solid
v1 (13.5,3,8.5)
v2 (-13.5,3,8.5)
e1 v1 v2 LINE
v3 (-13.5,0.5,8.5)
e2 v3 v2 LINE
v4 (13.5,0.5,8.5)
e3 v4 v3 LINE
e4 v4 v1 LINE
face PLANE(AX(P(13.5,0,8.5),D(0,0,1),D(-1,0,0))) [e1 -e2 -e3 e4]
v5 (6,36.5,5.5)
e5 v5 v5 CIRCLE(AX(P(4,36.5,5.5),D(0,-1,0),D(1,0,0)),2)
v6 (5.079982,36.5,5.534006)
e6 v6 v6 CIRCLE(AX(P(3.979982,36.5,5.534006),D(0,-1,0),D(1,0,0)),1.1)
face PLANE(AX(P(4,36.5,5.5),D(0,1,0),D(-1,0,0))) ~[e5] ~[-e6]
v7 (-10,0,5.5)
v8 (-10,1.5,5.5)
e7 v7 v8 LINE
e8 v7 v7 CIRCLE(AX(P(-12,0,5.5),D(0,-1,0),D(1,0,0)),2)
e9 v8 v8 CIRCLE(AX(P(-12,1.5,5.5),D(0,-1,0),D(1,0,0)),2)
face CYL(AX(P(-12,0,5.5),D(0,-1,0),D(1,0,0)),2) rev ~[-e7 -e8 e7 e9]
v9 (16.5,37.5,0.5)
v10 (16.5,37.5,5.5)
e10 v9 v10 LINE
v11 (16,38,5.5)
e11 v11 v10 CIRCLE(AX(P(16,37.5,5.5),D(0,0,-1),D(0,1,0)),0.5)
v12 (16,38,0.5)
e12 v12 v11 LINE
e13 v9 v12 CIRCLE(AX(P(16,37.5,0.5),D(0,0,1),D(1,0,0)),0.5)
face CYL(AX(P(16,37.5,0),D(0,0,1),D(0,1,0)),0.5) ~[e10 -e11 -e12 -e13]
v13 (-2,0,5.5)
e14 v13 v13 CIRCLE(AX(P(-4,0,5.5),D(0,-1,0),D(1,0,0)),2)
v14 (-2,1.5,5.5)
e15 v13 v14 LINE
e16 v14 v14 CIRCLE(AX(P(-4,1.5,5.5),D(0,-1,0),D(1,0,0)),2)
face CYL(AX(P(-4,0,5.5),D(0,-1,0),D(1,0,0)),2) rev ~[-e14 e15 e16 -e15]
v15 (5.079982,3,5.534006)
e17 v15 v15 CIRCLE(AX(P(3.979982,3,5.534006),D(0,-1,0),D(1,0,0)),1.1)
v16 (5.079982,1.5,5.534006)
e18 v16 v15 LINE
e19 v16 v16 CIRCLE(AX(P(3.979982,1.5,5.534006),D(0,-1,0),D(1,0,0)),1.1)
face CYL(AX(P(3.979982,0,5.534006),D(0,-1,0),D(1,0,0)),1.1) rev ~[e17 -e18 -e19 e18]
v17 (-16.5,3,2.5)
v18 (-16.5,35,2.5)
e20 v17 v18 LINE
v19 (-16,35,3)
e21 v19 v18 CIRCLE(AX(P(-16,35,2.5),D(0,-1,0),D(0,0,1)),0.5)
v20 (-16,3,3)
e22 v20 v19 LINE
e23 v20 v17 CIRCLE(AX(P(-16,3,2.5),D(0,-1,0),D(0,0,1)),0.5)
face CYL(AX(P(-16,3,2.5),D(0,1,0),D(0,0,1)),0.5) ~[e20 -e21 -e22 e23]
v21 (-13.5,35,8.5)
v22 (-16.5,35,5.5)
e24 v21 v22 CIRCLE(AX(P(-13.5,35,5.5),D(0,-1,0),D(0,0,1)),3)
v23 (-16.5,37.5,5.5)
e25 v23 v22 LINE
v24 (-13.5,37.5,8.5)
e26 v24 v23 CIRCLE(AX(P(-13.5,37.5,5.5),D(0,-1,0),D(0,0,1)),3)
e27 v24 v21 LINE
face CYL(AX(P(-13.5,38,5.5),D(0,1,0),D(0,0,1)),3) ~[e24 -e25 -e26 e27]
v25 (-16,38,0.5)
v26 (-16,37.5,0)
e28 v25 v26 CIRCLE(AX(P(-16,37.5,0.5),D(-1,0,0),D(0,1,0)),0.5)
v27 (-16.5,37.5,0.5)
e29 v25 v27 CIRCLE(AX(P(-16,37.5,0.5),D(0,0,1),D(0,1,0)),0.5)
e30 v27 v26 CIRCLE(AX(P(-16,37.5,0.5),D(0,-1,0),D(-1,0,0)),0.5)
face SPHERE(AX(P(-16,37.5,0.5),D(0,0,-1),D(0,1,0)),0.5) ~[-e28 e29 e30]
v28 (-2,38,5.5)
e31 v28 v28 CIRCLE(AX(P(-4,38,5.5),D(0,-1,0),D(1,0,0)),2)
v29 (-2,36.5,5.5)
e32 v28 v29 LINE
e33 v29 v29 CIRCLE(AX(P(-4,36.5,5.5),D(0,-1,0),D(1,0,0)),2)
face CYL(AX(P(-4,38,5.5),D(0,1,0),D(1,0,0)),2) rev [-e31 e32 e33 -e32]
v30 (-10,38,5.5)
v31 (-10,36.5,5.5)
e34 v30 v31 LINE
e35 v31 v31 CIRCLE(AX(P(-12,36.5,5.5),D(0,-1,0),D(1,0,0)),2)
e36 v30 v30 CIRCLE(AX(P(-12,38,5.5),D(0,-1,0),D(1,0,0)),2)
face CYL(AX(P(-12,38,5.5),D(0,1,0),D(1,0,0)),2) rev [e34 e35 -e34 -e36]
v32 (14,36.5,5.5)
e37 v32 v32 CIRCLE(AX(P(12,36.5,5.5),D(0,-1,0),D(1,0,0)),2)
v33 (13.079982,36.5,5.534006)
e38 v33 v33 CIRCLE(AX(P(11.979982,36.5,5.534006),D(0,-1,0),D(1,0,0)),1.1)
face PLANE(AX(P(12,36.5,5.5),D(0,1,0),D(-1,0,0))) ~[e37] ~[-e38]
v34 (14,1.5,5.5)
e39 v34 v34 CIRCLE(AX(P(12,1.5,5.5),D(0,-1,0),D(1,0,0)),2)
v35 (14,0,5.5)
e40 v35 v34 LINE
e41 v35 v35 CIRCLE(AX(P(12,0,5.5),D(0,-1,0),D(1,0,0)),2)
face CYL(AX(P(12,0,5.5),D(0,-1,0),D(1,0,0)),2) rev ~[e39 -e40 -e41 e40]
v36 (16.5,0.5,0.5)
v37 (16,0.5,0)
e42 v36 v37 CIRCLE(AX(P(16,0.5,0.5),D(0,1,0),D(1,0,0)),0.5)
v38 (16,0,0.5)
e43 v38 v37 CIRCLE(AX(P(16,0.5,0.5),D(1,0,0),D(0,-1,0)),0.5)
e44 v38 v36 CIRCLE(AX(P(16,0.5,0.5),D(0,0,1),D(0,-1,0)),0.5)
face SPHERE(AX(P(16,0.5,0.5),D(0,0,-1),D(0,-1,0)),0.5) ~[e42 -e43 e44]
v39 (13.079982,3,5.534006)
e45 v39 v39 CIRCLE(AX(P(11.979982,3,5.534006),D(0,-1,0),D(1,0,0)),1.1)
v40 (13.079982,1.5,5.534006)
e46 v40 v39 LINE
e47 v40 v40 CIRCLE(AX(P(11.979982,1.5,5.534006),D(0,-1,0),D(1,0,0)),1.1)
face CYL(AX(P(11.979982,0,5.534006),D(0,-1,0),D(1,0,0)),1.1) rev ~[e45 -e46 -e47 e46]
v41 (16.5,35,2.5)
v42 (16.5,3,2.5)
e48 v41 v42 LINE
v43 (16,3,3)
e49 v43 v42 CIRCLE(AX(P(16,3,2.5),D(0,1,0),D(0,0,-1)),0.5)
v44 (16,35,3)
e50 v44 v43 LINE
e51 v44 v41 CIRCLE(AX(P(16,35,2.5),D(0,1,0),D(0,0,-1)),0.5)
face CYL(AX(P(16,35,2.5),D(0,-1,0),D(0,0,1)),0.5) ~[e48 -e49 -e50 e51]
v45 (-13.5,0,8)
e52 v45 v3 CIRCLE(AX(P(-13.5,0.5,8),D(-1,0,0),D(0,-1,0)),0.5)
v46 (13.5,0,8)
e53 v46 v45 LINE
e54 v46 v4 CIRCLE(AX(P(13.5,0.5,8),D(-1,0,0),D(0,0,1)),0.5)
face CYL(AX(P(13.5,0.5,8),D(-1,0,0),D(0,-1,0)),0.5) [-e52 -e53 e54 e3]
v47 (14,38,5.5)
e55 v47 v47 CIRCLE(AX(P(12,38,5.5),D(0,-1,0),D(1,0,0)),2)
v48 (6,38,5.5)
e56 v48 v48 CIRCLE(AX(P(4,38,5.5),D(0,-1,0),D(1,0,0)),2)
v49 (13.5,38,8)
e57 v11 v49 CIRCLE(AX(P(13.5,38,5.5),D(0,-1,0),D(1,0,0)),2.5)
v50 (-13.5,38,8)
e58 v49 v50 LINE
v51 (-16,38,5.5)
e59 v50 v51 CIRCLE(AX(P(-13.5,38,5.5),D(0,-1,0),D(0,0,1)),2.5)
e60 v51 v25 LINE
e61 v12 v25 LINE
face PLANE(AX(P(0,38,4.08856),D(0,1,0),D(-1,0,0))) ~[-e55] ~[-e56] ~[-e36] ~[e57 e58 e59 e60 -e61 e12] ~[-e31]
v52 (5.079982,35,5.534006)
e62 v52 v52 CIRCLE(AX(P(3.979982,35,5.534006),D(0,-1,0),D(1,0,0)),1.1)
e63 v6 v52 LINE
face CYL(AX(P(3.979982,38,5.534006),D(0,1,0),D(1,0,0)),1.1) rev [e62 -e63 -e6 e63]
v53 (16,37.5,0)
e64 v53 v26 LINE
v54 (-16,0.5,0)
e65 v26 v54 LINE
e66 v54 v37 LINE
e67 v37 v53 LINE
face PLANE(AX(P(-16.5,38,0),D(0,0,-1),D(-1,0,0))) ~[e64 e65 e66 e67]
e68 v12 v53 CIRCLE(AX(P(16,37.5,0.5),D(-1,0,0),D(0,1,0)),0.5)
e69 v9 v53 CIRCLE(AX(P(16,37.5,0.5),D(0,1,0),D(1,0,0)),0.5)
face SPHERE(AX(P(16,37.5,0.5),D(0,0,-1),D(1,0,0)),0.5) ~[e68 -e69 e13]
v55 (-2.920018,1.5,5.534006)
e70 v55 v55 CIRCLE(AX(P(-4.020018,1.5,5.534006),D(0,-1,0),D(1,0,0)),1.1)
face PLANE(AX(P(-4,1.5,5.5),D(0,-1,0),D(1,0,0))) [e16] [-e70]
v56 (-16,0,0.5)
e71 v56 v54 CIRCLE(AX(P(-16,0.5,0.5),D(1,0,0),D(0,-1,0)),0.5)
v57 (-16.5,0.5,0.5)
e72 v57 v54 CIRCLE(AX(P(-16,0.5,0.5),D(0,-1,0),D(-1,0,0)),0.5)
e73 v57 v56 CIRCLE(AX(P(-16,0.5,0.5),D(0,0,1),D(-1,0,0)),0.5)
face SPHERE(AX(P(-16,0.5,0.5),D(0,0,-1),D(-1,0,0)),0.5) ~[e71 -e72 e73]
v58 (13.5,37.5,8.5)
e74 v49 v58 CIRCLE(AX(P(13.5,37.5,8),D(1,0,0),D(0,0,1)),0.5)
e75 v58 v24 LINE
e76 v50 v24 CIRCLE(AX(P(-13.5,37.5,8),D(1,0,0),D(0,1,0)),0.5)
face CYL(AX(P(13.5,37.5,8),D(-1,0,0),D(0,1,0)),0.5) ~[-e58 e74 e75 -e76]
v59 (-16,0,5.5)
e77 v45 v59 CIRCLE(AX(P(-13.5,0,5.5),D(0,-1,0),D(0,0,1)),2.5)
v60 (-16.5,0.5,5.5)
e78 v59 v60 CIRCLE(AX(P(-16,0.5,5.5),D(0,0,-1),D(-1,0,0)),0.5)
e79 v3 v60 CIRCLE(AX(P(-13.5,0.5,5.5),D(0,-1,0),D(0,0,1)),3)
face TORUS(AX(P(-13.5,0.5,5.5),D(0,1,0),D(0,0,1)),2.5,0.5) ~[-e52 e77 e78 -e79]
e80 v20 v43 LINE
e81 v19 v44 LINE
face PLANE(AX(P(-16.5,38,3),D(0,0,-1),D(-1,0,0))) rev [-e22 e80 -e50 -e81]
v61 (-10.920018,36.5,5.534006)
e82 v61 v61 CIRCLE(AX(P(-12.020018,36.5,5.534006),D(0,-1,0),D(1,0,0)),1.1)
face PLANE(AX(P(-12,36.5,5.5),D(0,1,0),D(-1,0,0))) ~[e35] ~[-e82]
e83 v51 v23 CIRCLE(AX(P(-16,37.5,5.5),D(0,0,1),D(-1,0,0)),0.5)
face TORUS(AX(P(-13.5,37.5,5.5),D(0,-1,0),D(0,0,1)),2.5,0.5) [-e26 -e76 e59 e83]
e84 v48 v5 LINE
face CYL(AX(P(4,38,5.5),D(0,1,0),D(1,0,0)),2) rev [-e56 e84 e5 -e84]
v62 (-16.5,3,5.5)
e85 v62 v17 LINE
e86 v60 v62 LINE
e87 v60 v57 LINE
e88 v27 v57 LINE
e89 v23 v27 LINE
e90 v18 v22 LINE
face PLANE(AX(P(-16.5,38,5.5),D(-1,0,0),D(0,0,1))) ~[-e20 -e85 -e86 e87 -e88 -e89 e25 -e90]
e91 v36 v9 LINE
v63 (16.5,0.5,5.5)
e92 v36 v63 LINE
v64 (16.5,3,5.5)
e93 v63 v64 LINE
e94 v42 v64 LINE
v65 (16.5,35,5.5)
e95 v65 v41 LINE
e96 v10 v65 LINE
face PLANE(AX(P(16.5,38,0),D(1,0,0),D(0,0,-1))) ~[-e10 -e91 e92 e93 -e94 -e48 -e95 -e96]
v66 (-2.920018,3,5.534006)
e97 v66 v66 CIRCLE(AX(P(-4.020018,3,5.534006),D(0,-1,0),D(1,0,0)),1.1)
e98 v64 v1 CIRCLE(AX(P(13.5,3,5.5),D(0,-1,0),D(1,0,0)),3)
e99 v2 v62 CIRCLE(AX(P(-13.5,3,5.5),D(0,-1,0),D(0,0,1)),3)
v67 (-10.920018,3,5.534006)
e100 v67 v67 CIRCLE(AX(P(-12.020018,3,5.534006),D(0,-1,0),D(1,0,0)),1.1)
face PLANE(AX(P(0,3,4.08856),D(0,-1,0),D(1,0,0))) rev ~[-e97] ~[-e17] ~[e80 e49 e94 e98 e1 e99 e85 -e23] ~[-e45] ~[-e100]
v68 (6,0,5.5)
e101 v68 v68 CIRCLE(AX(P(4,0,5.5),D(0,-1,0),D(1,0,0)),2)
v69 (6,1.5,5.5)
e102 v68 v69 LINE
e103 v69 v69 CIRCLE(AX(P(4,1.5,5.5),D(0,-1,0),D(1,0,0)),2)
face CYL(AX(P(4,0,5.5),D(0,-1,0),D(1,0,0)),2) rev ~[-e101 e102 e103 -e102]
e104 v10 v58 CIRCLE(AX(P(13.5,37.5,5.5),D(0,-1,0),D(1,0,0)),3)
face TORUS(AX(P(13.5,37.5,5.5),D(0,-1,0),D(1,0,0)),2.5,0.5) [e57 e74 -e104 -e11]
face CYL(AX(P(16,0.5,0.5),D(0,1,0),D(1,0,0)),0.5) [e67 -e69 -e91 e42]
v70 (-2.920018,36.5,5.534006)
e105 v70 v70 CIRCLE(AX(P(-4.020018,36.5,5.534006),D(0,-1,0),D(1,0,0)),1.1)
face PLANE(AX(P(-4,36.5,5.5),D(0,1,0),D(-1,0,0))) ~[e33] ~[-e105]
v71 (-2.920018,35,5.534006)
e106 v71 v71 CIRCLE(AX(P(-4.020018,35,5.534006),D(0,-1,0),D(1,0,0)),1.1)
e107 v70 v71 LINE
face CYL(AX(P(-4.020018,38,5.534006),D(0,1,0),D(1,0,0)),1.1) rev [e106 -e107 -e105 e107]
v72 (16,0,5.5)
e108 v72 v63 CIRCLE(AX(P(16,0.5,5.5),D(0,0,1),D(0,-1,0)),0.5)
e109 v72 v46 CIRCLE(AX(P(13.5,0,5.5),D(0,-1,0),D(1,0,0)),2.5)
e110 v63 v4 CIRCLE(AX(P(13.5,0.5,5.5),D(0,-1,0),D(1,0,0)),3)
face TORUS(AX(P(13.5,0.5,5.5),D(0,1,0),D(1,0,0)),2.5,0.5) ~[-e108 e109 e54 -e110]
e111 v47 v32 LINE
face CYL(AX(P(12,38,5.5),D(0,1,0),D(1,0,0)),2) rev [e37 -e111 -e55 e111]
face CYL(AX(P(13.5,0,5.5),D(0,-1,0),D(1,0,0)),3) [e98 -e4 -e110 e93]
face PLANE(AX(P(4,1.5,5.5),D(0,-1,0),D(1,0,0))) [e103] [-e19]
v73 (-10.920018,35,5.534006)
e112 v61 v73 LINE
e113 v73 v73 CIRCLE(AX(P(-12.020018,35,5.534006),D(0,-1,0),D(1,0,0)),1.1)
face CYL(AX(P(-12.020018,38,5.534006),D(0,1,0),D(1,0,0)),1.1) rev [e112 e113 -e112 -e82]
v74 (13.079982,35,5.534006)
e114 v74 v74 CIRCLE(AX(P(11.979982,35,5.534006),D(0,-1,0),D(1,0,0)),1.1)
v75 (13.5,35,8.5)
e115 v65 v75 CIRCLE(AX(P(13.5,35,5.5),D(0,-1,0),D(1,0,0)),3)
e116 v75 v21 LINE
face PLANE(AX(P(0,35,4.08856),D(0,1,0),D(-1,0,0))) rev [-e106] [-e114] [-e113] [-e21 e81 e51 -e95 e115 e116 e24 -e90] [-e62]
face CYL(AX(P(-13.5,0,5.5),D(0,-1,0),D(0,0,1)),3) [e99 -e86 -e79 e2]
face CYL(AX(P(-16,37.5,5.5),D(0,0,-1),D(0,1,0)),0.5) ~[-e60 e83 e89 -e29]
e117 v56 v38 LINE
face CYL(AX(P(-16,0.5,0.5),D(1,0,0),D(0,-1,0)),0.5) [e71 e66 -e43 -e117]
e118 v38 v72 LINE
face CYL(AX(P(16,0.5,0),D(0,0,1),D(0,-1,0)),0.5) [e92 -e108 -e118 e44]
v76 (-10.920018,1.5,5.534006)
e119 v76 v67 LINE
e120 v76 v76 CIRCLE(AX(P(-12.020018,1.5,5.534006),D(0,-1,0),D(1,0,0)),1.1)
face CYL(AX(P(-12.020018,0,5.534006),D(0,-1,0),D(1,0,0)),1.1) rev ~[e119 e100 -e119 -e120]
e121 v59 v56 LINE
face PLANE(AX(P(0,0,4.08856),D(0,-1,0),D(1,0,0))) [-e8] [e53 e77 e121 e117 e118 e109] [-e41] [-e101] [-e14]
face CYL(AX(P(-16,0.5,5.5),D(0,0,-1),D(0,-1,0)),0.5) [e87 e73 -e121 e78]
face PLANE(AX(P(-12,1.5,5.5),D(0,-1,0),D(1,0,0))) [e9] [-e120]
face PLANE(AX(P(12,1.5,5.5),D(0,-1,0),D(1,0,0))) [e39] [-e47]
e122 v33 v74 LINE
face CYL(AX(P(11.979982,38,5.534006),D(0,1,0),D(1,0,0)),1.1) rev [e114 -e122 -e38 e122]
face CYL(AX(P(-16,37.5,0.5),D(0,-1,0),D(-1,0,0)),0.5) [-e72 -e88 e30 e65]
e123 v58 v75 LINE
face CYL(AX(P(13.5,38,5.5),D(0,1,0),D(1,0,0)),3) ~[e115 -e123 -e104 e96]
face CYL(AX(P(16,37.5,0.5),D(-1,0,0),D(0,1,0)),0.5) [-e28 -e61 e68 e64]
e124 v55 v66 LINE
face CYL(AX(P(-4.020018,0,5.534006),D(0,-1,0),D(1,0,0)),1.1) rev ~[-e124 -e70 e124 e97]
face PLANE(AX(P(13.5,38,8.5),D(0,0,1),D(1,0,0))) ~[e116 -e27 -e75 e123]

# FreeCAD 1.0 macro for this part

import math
import FreeCAD as App
import Part
import Sketcher


def edges_at(feature, points):
    """Names of the edges that pass closest to the given points."""
    edges = feature.Shape.Edges
    near = lambda p: min(range(len(edges)), key=lambda i: edges[i].distToShape(Part.Vertex(*p))[0])
    return sorted({f"Edge{near(p) + 1}" for p in points})

doc = App.newDocument("Part")
body = doc.addObject("PartDesign::Body", "Body")

# Sketch on XZ plane
sketch1 = body.newObject("Sketcher::SketchObject", "Sketch")
sketch1.AttachmentSupport = (doc.getObject("XZ_Plane"), [""])
sketch1.MapMode = "FlatFace"
sketch1.addGeometry([
    Part.LineSegment(App.Vector(13.5, 8.5, 0), App.Vector(-13.5, 8.5, 0)),  # 0
    Part.ArcOfCircle(Part.Circle(App.Vector(-13.5, 5.5, 0), App.Vector(0, 0, 1), 3), math.radians(90), math.radians(180)),  # 1
    Part.LineSegment(App.Vector(-16.5, 5.5, 0), App.Vector(-16.5, 0, 0)),  # 2
    Part.LineSegment(App.Vector(-16.5, 0, 0), App.Vector(16.5, 0, 0)),  # 3
    Part.LineSegment(App.Vector(16.5, 0, 0), App.Vector(16.5, 5.5, 0)),  # 4
    Part.ArcOfCircle(Part.Circle(App.Vector(13.5, 5.5, 0), App.Vector(0, 0, 1), 3), math.radians(0), math.radians(90)),  # 5
], False)
sketch1.addConstraint([
    Sketcher.Constraint("Tangent", 0, 2, 1, 1),
    Sketcher.Constraint("Tangent", 1, 2, 2, 1),
    Sketcher.Constraint("Coincident", 2, 2, 3, 1),
    Sketcher.Constraint("Coincident", 3, 2, 4, 1),
    Sketcher.Constraint("Tangent", 4, 2, 5, 1),
    Sketcher.Constraint("Tangent", 5, 2, 0, 1),
    Sketcher.Constraint("Horizontal", 0),
    Sketcher.Constraint("Vertical", 2),
    Sketcher.Constraint("Horizontal", 3),
    Sketcher.Constraint("Vertical", 4),
    Sketcher.Constraint("Equal", 1, 5),
    Sketcher.Constraint("Symmetric", 2, 2, 3, 2, -1, 1),
    Sketcher.Constraint("Radius", 1, 3.0),
    Sketcher.Constraint("DistanceX", 0, 2, 0, 1, 27.0),
    Sketcher.Constraint("DistanceY", 2, 2, 2, 1, 5.5),
])
pad1 = body.newObject("PartDesign::Pad", "Pad")
pad1.Profile = sketch1
pad1.Length = 3
pad1.Reversed = True

# Sketch on XZ plane
sketch2 = body.newObject("Sketcher::SketchObject", "Sketch001")
sketch2.AttachmentSupport = (doc.getObject("XZ_Plane"), [""])
sketch2.MapMode = "FlatFace"
sketch2.addGeometry([
    Part.Circle(App.Vector(-12, 5.5, 0), App.Vector(0, 0, 1), 2),
    Part.Circle(App.Vector(-4, 5.5, 0), App.Vector(0, 0, 1), 2),
    Part.Circle(App.Vector(4, 5.5, 0), App.Vector(0, 0, 1), 2),
    Part.Circle(App.Vector(12, 5.5, 0), App.Vector(0, 0, 1), 2),
], False)
sketch2.addConstraint([
    Sketcher.Constraint("Equal", 0, 1),
    Sketcher.Constraint("Equal", 1, 2),
    Sketcher.Constraint("Equal", 2, 3),
    Sketcher.Constraint("Symmetric", 1, 3, 2, 3, -2),
    Sketcher.Constraint("Symmetric", 0, 3, 3, 3, -2),
    Sketcher.Constraint("Horizontal", 0, 3, 1, 3),
    Sketcher.Constraint("Diameter", 0, 4.0),
    Sketcher.Constraint("DistanceX", 0, 3, -1, 1, 12.0),
    Sketcher.Constraint("DistanceX", 1, 3, -1, 1, 4.0),
    Sketcher.Constraint("DistanceY", -1, 1, 0, 3, 5.5),
])
pocket1 = body.newObject("PartDesign::Pocket", "Pocket")
pocket1.Profile = sketch2
pocket1.Length = 1.5

# Sketch on XZ plane
sketch3 = body.newObject("Sketcher::SketchObject", "Sketch002")
sketch3.AttachmentSupport = (doc.getObject("XZ_Plane"), [""])
sketch3.MapMode = "FlatFace"
sketch3.addGeometry([
    Part.Circle(App.Vector(-12, 5.5, 0), App.Vector(0, 0, 1), 1.1),
    Part.Circle(App.Vector(-4, 5.5, 0), App.Vector(0, 0, 1), 1.1),
    Part.Circle(App.Vector(4, 5.5, 0), App.Vector(0, 0, 1), 1.1),
    Part.Circle(App.Vector(12, 5.5, 0), App.Vector(0, 0, 1), 1.1),
], False)
sketch3.addConstraint([
    Sketcher.Constraint("Equal", 0, 1),
    Sketcher.Constraint("Equal", 1, 2),
    Sketcher.Constraint("Equal", 2, 3),
    Sketcher.Constraint("Horizontal", 0, 3, 1, 3),
    Sketcher.Constraint("Horizontal", 1, 3, 2, 3),
    Sketcher.Constraint("Horizontal", 2, 3, 3, 3),
    Sketcher.Constraint("Diameter", 0, 2.2),
    Sketcher.Constraint("DistanceX", 0, 3, 1, 3, 8.0),
    Sketcher.Constraint("DistanceX", 1, 3, 2, 3, 8.0),
    Sketcher.Constraint("DistanceX", 2, 3, 3, 3, 8.0),
    Sketcher.Constraint("DistanceX", 0, 3, -1, 1, 12.020018),
    Sketcher.Constraint("DistanceY", -1, 1, 0, 3, 5.534006),
])
pocket2 = body.newObject("PartDesign::Pocket", "Pocket001")
pocket2.Profile = sketch3
pocket2.Length = 3

# Sketch on XZ plane
sketch4 = body.newObject("Sketcher::SketchObject", "Sketch003")
sketch4.AttachmentSupport = (doc.getObject("XZ_Plane"), [""])
sketch4.MapMode = "FlatFace"
sketch4.addGeometry([
    Part.LineSegment(App.Vector(-16.5, 3, 0), App.Vector(-16.5, 0, 0)),
    Part.LineSegment(App.Vector(-16.5, 0, 0), App.Vector(16.5, 0, 0)),
    Part.LineSegment(App.Vector(16.5, 0, 0), App.Vector(16.5, 3, 0)),
    Part.LineSegment(App.Vector(16.5, 3, 0), App.Vector(-16.5, 3, 0)),
], False)
sketch4.addConstraint([
    Sketcher.Constraint("Coincident", 0, 2, 1, 1),
    Sketcher.Constraint("Coincident", 1, 2, 2, 1),
    Sketcher.Constraint("Coincident", 2, 2, 3, 1),
    Sketcher.Constraint("Coincident", 3, 2, 0, 1),
    Sketcher.Constraint("Vertical", 0),
    Sketcher.Constraint("Horizontal", 1),
    Sketcher.Constraint("Vertical", 2),
    Sketcher.Constraint("Horizontal", 3),
    Sketcher.Constraint("Symmetric", 0, 2, 1, 2, -1, 1),
    Sketcher.Constraint("DistanceX", 1, 1, 1, 2, 33.0),
    Sketcher.Constraint("DistanceY", 0, 2, 0, 1, 3.0),
])
pad2 = body.newObject("PartDesign::Pad", "Pad001")
pad2.Profile = sketch4
pad2.Length = 19
pad2.Reversed = True
body2 = doc.addObject("PartDesign::Body", "Body001")
doc.recompute()

body2.BaseFeature = body
doc.recompute()

mirroring = doc.addObject("Part::Mirroring", "Mirroring")
mirroring.Source = body
mirroring.Base = App.Vector(0, 19, 1.5)
mirroring.Normal = App.Vector(0, 1, 0)
body3 = doc.addObject("PartDesign::Body", "Body002")
body3.BaseFeature = mirroring
boolean = body2.newObject("PartDesign::Boolean", "Boolean")
boolean.Type = "Fuse"
boolean.addObjects([body3])
doc.recompute()

fillet = body2.newObject("PartDesign::Fillet", "Fillet")
fillet.Base = (boolean, edges_at(boolean, [
    (0, 0, 8.5),
    (0, 38, 8.5),
    (16.5, 19, 3),
    (-16.5, 19, 3),
]))
fillet.Radius = 0.5
doc.recompute()

fillet2 = body2.newObject("PartDesign::Fillet", "Fillet001")
fillet2.Base = (fillet, edges_at(fillet, [
    (-16.5, 19, 0),
    (-16.354, 37.854, 0),
    (-16.354, 0.146, 0),
    (0, 38, 0),
    (0, 0, 0),
    (16.354, 37.854, 0),
    (16.354, 0.146, 0),
    (16.5, 19, 0),
]))
fillet2.Radius = 0.5
mirroring.Visibility = False

doc.recompute()
